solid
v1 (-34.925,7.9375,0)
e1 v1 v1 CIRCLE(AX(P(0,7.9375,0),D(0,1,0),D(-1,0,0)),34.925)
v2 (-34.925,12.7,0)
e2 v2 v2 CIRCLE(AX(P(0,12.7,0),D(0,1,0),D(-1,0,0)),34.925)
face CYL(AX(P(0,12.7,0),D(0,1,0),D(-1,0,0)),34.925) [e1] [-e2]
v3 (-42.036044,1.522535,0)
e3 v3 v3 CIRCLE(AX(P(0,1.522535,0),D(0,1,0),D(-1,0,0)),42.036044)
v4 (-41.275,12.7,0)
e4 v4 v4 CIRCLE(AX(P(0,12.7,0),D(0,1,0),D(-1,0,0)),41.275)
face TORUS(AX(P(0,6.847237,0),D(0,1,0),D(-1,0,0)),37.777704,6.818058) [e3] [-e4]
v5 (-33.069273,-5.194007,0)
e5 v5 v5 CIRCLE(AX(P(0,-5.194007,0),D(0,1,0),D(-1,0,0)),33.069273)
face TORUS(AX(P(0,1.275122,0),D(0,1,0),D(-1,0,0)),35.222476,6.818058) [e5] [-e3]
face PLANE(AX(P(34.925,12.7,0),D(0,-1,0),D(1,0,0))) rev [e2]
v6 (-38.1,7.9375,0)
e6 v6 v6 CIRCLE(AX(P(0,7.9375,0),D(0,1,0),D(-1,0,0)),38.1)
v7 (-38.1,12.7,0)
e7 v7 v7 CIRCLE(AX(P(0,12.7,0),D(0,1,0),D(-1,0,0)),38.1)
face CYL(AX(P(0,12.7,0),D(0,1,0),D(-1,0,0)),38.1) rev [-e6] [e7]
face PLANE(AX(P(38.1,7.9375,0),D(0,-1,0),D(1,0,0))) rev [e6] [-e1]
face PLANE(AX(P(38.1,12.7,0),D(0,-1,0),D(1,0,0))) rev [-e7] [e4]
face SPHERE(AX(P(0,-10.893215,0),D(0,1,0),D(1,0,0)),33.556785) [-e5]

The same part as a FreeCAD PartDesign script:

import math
import FreeCAD as App
import Part
import Sketcher

V = App.Vector
Q = App.Units.Quantity

doc = App.newDocument("Part")
body = doc.addObject("PartDesign::Body", "Body")

# Sketch on XY plane
sketch1 = body.newObject("Sketcher::SketchObject", "Sketch")
sketch1.AttachmentSupport = (doc.getObject("XY_Plane"), [""])
sketch1.MapMode = "FlatFace"
sketch1.addGeometry(Part.LineSegment(V(38.1, 7.9, 0), V(34.9, 7.9, 0)), False)
sketch1.addGeometry(Part.LineSegment(V(34.9, 7.9, 0), V(34.9, 12.7, 0)), False)
sketch1.addGeometry(Part.LineSegment(V(34.9, 12.7, 0), V(0, 12.7, 0)), False)
sketch1.addGeometry(Part.LineSegment(V(0, 12.7, 0), V(0, -44.5, 0)), False)
sketch1.addGeometry(Part.ArcOfCircle(Part.Circle(V(0, -10.9, 0), V(0, 0, 1), 33.6), math.radians(-90), math.radians(10)), False)
sketch1.addGeometry(Part.ArcOfCircle(Part.Circle(V(35.2, 1.3, 0), V(0, 0, 1), 6.8), math.radians(-108), math.radians(2)), False)
sketch1.addGeometry(Part.ArcOfCircle(Part.Circle(V(37.8, 6.8, 0), V(0, 0, 1), 6.8), math.radians(-51), math.radians(59)), False)
sketch1.addGeometry(Part.LineSegment(V(41.3, 12.7, 0), V(38.1, 12.7, 0)), False)
sketch1.addGeometry(Part.LineSegment(V(38.1, 12.7, 0), V(38.1, 7.9, 0)), False)
sketch1.addConstraint(Sketcher.Constraint("Coincident", 0, 2, 1, 1))
sketch1.addConstraint(Sketcher.Constraint("Coincident", 1, 2, 2, 1))
sketch1.addConstraint(Sketcher.Constraint("Coincident", 2, 2, 3, 1))
sketch1.addConstraint(Sketcher.Constraint("Coincident", 3, 2, 4, 1))
sketch1.addConstraint(Sketcher.Constraint("Coincident", 4, 2, 5, 1))
sketch1.addConstraint(Sketcher.Constraint("Coincident", 5, 2, 6, 1))
sketch1.addConstraint(Sketcher.Constraint("Coincident", 6, 2, 7, 1))
sketch1.addConstraint(Sketcher.Constraint("Coincident", 7, 2, 8, 1))
sketch1.addConstraint(Sketcher.Constraint("Coincident", 8, 2, 0, 1))
sketch1.addConstraint(Sketcher.Constraint("Horizontal", 0))
sketch1.addConstraint(Sketcher.Constraint("Vertical", 1))
sketch1.addConstraint(Sketcher.Constraint("Horizontal", 2))
sketch1.addConstraint(Sketcher.Constraint("Vertical", 3))
sketch1.addConstraint(Sketcher.Constraint("Horizontal", 7))
sketch1.addConstraint(Sketcher.Constraint("Vertical", 8))
sketch1.addConstraint(Sketcher.Constraint("Equal", 5, 6))
sketch1.addConstraint(Sketcher.Constraint("PointOnObject", 4, 3, -2))
sketch1.addConstraint(Sketcher.Constraint("PointOnObject", 2, 2, -2))
sketch1.addConstraint(Sketcher.Constraint("Horizontal", 2, 2, 6, 2))
sketch1.addConstraint(Sketcher.Constraint("Equal", 0, 7))
sketch1.addConstraint(Sketcher.Constraint("DistanceY", 3, 2, 3, 1, Q("2.25 in")))
sketch1.addConstraint(Sketcher.Constraint("DistanceY", -1, 1, 1, 2, Q("0.5 in")))
sketch1.addConstraint(Sketcher.Constraint("DistanceX", -1, 1, 7, 2, Q("1.5 in")))
sketch1.addConstraint(Sketcher.Constraint("DistanceX", 0, 2, 0, 1, Q("0.125 in")))
sketch1.addConstraint(Sketcher.Constraint("DistanceY", 1, 1, 1, 2, Q("0.1875 in")))
sketch1.addConstraint(Sketcher.Constraint("Radius", 5, 6.818058))
sketch1.addConstraint(Sketcher.Constraint("Radius", 4, 33.556785))
sketch1.addConstraint(Sketcher.Constraint("DistanceY", 4, 2, 5, 3, 6.469129))
sketch1.addConstraint(Sketcher.Constraint("DistanceX", 4, 2, 6, 3, 4.70843))
sketch1.addConstraint(Sketcher.Constraint("DistanceY", 4, 3, 4, 2, 5.699208))
revolution = body.newObject("PartDesign::Revolution", "Revolution")
revolution.Profile = sketch1
revolution.ReferenceAxis = (sketch1, ["V_Axis"])
revolution.Angle = 360

doc.recompute()
